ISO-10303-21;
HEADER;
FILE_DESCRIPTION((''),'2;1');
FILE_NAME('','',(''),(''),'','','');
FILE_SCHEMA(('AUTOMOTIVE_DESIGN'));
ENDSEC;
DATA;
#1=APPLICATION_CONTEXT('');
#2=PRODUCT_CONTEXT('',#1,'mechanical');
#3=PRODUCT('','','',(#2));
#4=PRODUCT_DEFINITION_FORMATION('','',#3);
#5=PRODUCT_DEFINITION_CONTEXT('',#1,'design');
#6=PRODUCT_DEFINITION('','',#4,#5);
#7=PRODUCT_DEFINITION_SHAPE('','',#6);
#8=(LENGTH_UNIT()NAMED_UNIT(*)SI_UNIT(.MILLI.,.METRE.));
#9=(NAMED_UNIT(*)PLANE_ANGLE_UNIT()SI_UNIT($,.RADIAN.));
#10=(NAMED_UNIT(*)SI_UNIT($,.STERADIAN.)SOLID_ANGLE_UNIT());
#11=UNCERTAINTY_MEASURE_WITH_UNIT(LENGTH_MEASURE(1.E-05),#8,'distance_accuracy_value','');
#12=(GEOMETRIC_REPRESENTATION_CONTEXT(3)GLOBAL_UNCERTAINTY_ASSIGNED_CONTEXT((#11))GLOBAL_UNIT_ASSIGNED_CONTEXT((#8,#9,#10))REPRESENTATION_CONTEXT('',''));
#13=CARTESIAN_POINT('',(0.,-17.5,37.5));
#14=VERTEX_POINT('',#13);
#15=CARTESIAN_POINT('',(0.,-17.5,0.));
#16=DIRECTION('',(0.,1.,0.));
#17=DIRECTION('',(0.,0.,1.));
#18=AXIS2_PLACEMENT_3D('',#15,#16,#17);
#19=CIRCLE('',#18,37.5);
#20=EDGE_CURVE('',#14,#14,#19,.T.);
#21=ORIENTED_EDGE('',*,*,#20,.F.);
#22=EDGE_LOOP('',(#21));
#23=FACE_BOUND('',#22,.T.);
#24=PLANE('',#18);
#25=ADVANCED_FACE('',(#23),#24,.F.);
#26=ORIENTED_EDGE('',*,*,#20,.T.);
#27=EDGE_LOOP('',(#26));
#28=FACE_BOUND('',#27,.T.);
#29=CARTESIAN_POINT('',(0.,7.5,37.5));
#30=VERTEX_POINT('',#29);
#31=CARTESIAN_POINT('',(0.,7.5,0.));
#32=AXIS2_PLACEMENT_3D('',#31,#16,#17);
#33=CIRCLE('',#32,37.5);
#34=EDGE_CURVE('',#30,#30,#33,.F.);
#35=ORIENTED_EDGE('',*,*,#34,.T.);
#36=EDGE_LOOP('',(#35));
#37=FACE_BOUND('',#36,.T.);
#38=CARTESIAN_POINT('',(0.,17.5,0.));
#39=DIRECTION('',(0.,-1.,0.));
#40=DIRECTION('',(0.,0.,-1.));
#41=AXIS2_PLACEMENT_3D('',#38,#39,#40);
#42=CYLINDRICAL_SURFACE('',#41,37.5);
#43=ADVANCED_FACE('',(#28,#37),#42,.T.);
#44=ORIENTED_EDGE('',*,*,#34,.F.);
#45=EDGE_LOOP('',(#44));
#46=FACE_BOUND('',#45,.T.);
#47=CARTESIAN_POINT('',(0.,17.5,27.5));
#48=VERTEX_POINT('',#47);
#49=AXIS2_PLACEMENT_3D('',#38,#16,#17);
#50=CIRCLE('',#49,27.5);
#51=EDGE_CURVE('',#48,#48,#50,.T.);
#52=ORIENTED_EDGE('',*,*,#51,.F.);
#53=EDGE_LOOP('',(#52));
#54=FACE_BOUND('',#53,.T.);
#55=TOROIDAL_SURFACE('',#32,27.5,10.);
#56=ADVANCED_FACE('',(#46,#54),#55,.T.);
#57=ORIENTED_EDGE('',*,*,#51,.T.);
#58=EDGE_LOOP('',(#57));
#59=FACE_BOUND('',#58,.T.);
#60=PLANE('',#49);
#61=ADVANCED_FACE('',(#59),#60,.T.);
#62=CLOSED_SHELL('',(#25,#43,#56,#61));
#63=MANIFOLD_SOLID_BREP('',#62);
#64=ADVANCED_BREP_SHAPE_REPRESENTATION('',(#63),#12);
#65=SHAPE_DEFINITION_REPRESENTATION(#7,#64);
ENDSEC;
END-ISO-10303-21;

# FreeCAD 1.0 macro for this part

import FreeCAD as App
import Part
import Sketcher
from FreeCAD import Vector


def edges_at(feature, points):
    """Names of the edges that pass closest to the given points."""
    edges = feature.Shape.Edges
    near = lambda p: min(range(len(edges)), key=lambda i: edges[i].distToShape(Part.Vertex(*p))[0])
    return sorted({f"Edge{near(p) + 1}" for p in points})

doc = App.newDocument("Part")
body = doc.addObject("PartDesign::Body", "Body")

sketch1 = doc.addObject("Sketcher::SketchObject", "Sketch")
body.addObject(sketch1)
sketch1.AttachmentSupport = (doc.XZ_Plane, [""])
sketch1.MapMode = "FlatFace"
sketch1.addGeometry(Part.Circle(Vector(0, 0, 0), Vector(0, 0, 1), 37.5), False)
sketch1.addConstraint([
    Sketcher.Constraint("Coincident", 0, 3, -1, 1),
    Sketcher.Constraint("Diameter", 0, 75.0),
])
pad1 = doc.addObject("PartDesign::Pad", "Pad")
body.addObject(pad1)
pad1.Profile = sketch1
pad1.Length = 35
pad1.Midplane = True
doc.recompute()

fillet = doc.addObject("PartDesign::Fillet", "Fillet")
body.addObject(fillet)
fillet.Base = (pad1, edges_at(pad1, [(0, 17.5, -37.5)]))
fillet.Radius = 10

doc.recompute()
